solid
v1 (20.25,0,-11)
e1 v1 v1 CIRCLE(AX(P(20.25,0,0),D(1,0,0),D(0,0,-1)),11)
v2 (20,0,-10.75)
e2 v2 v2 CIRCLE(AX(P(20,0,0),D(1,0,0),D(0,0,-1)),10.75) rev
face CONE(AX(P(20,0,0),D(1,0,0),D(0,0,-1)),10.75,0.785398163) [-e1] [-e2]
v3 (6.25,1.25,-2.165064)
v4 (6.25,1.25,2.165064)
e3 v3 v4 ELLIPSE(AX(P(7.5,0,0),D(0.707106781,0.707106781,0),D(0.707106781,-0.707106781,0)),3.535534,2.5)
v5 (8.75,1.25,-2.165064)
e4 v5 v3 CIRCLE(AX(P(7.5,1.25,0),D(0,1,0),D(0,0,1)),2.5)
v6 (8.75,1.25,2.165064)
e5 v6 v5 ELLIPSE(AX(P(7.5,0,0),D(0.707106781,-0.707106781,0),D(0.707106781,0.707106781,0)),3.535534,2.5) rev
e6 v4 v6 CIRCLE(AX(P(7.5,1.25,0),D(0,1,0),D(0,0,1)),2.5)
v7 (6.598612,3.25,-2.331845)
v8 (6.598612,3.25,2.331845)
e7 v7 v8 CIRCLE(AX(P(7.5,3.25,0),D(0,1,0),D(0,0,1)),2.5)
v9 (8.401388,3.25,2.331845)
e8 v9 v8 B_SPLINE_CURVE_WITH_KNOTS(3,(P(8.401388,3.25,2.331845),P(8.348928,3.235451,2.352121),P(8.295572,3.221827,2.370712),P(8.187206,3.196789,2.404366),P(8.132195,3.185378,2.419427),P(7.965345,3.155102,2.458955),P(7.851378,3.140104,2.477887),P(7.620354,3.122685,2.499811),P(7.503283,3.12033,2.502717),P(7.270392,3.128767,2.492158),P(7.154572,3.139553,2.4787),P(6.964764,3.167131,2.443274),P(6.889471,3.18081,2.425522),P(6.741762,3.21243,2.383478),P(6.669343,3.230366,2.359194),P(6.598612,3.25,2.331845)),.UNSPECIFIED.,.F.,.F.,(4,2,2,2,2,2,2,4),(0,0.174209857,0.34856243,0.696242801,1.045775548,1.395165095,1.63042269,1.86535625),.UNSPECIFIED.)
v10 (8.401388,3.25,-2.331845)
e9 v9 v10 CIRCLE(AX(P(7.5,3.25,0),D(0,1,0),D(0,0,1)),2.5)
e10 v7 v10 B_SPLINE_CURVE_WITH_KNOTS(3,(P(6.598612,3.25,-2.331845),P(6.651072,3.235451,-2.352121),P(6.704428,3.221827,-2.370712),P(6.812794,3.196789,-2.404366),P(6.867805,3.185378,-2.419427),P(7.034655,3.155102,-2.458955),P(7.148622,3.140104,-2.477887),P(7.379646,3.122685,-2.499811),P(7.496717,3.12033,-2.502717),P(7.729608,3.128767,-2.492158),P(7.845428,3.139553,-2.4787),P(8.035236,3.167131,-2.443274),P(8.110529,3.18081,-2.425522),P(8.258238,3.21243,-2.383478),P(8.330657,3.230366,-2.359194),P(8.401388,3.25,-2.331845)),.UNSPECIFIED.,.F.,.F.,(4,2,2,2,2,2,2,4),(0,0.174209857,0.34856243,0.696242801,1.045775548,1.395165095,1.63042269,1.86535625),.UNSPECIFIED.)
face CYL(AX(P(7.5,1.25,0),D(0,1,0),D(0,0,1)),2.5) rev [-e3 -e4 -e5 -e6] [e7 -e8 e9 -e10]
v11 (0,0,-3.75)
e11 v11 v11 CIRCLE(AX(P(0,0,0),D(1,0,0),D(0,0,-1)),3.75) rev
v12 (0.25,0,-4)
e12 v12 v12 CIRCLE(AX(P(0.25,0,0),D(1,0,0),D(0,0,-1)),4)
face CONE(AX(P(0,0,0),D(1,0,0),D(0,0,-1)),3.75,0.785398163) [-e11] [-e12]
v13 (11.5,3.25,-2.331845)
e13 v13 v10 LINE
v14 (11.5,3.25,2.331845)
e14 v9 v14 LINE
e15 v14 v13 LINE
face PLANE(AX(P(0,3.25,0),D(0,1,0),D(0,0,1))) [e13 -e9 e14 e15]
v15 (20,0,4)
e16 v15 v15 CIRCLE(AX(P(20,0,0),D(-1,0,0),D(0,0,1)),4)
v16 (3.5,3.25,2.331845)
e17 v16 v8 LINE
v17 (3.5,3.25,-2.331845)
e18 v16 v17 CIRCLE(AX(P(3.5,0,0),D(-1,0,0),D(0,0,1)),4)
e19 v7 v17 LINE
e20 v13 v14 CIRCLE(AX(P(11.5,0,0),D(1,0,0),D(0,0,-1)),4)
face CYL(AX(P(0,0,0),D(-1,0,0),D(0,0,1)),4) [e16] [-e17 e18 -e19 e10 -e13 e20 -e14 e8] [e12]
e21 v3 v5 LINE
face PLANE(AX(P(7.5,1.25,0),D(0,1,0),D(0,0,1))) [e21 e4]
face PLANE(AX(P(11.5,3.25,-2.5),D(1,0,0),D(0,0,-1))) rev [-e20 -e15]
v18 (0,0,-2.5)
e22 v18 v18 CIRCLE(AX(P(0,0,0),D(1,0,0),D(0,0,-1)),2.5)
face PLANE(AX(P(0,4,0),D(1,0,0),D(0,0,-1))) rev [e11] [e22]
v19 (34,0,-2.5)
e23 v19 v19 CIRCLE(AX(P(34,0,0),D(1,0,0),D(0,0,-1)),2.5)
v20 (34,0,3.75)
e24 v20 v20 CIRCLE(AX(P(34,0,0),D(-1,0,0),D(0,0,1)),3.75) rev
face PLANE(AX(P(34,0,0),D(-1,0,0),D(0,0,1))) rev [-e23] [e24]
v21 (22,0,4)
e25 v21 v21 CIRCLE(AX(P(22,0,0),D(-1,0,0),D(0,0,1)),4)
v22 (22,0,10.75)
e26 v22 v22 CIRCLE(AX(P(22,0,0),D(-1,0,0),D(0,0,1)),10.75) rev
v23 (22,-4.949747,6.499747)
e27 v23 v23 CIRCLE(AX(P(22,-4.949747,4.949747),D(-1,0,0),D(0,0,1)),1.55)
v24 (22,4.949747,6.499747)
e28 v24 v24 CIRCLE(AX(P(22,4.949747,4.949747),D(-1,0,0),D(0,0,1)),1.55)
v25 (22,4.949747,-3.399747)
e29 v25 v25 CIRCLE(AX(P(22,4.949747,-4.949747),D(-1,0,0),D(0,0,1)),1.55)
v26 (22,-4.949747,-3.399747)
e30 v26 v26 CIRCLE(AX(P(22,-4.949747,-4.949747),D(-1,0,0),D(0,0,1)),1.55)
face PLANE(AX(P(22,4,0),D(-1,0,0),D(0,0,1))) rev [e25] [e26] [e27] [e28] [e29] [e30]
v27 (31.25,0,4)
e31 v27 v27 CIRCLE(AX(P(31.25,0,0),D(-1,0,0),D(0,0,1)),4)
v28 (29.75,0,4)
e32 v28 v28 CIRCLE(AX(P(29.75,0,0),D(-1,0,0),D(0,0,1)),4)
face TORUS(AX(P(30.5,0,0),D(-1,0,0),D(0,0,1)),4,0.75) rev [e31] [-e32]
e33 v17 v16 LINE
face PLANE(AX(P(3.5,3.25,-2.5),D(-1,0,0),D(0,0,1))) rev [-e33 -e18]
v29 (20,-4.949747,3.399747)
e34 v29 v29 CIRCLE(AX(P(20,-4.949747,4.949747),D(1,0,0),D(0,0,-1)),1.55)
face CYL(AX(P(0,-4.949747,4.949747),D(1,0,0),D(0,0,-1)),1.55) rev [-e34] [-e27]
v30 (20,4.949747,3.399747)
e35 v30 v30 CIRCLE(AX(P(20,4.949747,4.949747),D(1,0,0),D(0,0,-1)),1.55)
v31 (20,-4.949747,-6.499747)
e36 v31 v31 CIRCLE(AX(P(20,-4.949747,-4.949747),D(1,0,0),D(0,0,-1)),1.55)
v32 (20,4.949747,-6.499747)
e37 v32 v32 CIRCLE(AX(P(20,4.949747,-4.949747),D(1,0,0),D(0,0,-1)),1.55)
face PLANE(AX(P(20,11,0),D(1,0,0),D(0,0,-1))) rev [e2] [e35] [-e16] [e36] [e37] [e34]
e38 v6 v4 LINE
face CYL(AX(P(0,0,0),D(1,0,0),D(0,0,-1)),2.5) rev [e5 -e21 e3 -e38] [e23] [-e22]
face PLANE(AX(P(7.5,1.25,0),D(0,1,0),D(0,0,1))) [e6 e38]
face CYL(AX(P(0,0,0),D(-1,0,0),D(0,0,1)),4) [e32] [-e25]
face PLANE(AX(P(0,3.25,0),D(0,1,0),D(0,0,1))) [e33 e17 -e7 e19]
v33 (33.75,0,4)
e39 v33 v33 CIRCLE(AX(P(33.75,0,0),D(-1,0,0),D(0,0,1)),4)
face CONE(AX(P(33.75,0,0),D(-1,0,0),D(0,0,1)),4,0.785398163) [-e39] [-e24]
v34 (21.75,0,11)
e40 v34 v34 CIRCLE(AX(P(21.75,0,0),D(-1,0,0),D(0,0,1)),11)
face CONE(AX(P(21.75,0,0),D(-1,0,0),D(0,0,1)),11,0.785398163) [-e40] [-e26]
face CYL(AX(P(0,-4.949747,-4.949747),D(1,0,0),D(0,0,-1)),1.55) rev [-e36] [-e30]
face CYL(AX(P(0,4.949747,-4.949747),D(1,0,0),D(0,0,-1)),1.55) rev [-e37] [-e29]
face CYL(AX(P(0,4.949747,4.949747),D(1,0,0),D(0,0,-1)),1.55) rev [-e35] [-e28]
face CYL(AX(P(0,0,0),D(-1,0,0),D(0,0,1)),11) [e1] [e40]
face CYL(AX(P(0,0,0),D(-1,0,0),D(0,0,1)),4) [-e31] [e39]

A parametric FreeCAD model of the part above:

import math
import FreeCAD as App
import Part
import Sketcher
from FreeCAD import Vector


def edges_at(feature, points):
    """Names of the edges that pass closest to the given points."""
    edges = feature.Shape.Edges
    near = lambda p: min(range(len(edges)), key=lambda i: edges[i].distToShape(Part.Vertex(*p))[0])
    return sorted({f"Edge{near(p) + 1}" for p in points})


def add_polygon(sketch, points):
    """Adds a closed chain of lines whose ends are joined by coincident constraints."""
    first, n = sketch.GeometryCount, len(points)
    for a, b in zip(points, points[1:] + points[:1]):
        sketch.addGeometry(Part.LineSegment(App.Vector(*a, 0), App.Vector(*b, 0)), False)
    for i in range(n):
        sketch.addConstraint(Sketcher.Constraint("Coincident", first + i, 2, first + (i + 1) % n, 1))

doc = App.newDocument("Part")
params = doc.addObject("Spreadsheet::Sheet", "Params")
for row, (alias, value) in enumerate([
    ("sketch1_width", "2 mm"),
    ("sketch1_width2", "20 mm"),
    ("sketch1_width3", "34 mm"),
    ("sketch1_height", "4 mm"),
    ("sketch1_height2", "7 mm"),
    ("revolution_angle", "360 deg"),
    ("sketch2_diameter", "5 mm"),
    ("sketch3_diameter", "3.1 mm"),
    ("sketch4_width", "8 mm"),
    ("sketch4_height", "5 mm"),
    ("pocket3_length", "0.75 mm"),
    ("sketch5_diameter", "5 mm"),
    ("pocket4_length", "2 mm"),
    ("chamfer_size", "0.25 mm"),
], start=1):
    params.set(f"A{row}", alias)
    params.set(f"B{row}", "=" + value)
    params.setAlias(f"B{row}", alias)

body = doc.addObject("PartDesign::Body", "Body")

# Sketch on XY plane
sketch1 = doc.addObject("Sketcher::SketchObject", "Sketch")
body.addObject(sketch1)
sketch1.AttachmentSupport = (doc.XY_Plane, [""])
sketch1.MapMode = "FlatFace"
sketch1.addGeometry([
    Part.LineSegment(Vector(34, 0, 0), Vector(34, 4, 0)),  # 0
    Part.LineSegment(Vector(34, 4, 0), Vector(31.2, 4, 0)),  # 1
    Part.ArcOfCircle(Part.Circle(Vector(30.5, 4, 0), Vector(0, 0, 1), 0.8), math.radians(180), math.radians(360)),  # 2
    Part.LineSegment(Vector(29.8, 4, 0), Vector(22, 4, 0)),  # 3
    Part.LineSegment(Vector(22, 4, 0), Vector(22, 11, 0)),  # 4
    Part.LineSegment(Vector(22, 11, 0), Vector(20, 11, 0)),  # 5
    Part.LineSegment(Vector(20, 11, 0), Vector(20, 4, 0)),  # 6
    Part.LineSegment(Vector(20, 4, 0), Vector(0, 4, 0)),  # 7
    Part.LineSegment(Vector(0, 4, 0), Vector(0, 0, 0)),  # 8
    Part.LineSegment(Vector(0, 0, 0), Vector(34, 0, 0)),  # 9
], False)
sketch1.addConstraint([
    Sketcher.Constraint("Coincident", 0, 2, 1, 1),
    Sketcher.Constraint("Coincident", 1, 2, 2, 2),
    Sketcher.Constraint("Coincident", 2, 1, 3, 1),
    Sketcher.Constraint("Coincident", 3, 2, 4, 1),
    Sketcher.Constraint("Coincident", 4, 2, 5, 1),
    Sketcher.Constraint("Coincident", 5, 2, 6, 1),
    Sketcher.Constraint("Coincident", 6, 2, 7, 1),
    Sketcher.Constraint("Coincident", 7, 2, 8, 1),
    Sketcher.Constraint("Coincident", 8, 2, 9, 1),
    Sketcher.Constraint("Coincident", 9, 2, 0, 1),
    Sketcher.Constraint("Vertical", 0),
    Sketcher.Constraint("Horizontal", 1),
    Sketcher.Constraint("Horizontal", 3),
    Sketcher.Constraint("Vertical", 4),
    Sketcher.Constraint("Horizontal", 5),
    Sketcher.Constraint("Vertical", 6),
    Sketcher.Constraint("Horizontal", 7),
    Sketcher.Constraint("Vertical", 8),
    Sketcher.Constraint("Horizontal", 9),
    Sketcher.Constraint("Coincident", 8, 2, -1, 1),
    Sketcher.Constraint("Horizontal", 2, 3, 0, 2),
    Sketcher.Constraint("Horizontal", 1, 2, 2, 1),
    Sketcher.Constraint("Horizontal", 3, 2, 6, 2),
    Sketcher.Constraint("DistanceX", 5, 2, 5, 1, 2.0),
    Sketcher.Constraint("DistanceX", 7, 2, 7, 1, 20.0),
    Sketcher.Constraint("DistanceX", 9, 1, 9, 2, 34.0),
    Sketcher.Constraint("DistanceY", 0, 1, 0, 2, 4.0),
    Sketcher.Constraint("DistanceY", 4, 1, 4, 2, 7.0),
    Sketcher.Constraint("Radius", 2, 0.75),
    Sketcher.Constraint("DistanceX", 1, 2, 1, 1, 2.75),
])
sketch1.setExpression("Constraints[23]", "Params.sketch1_width")
sketch1.setExpression("Constraints[24]", "Params.sketch1_width2")
sketch1.setExpression("Constraints[25]", "Params.sketch1_width3")
sketch1.setExpression("Constraints[26]", "Params.sketch1_height")
sketch1.setExpression("Constraints[27]", "Params.sketch1_height2")
revolution = doc.addObject("PartDesign::Revolution", "Revolution")
body.addObject(revolution)
revolution.Profile = sketch1
revolution.ReferenceAxis = (sketch1, ["H_Axis"])
revolution.setExpression("Angle", "Params.revolution_angle")

# Sketch on YZ plane
sketch2 = doc.addObject("Sketcher::SketchObject", "Sketch001")
body.addObject(sketch2)
sketch2.AttachmentSupport = (doc.YZ_Plane, [""])
sketch2.MapMode = "FlatFace"
sketch2.AttachmentOffset = App.Placement(Vector(0, 0, 34), App.Rotation())
sketch2.addGeometry(Part.Circle(Vector(0, 0, 0), Vector(0, 0, 1), 2.5), False)
sketch2.addConstraint([
    Sketcher.Constraint("Coincident", 0, 3, -1, 1),
    Sketcher.Constraint("Diameter", 0, 5.0),
])
sketch2.setExpression("Constraints[1]", "Params.sketch2_diameter")
pocket1 = doc.addObject("PartDesign::Pocket", "Pocket")
body.addObject(pocket1)
pocket1.Profile = sketch2
pocket1.Type = "ThroughAll"

# Sketch on YZ plane
sketch3 = doc.addObject("Sketcher::SketchObject", "Sketch002")
body.addObject(sketch3)
sketch3.AttachmentSupport = (doc.YZ_Plane, [""])
sketch3.MapMode = "FlatFace"
sketch3.AttachmentOffset = App.Placement(Vector(0, 0, 22), App.Rotation())
sketch3.addGeometry([
    Part.Circle(Vector(4.9, -4.9, 0), Vector(0, 0, 1), 1.6),
    Part.Circle(Vector(-4.9, -4.9, 0), Vector(0, 0, 1), 1.6),
    Part.Circle(Vector(-4.9, 4.9, 0), Vector(0, 0, 1), 1.6),
    Part.Circle(Vector(4.9, 4.9, 0), Vector(0, 0, 1), 1.6),
], False)
sketch3.addConstraint([
    Sketcher.Constraint("Equal", 0, 1),
    Sketcher.Constraint("Equal", 1, 2),
    Sketcher.Constraint("Equal", 2, 3),
    Sketcher.Constraint("Symmetric", 0, 3, 2, 3, -1, 1),
    Sketcher.Constraint("Symmetric", 1, 3, 3, 3, -1, 1),
    Sketcher.Constraint("Symmetric", 0, 3, 1, 3, -2),
    Sketcher.Constraint("Diameter", 0, 3.1),
    Sketcher.Constraint("DistanceX", -1, 1, 0, 3, 4.949747),
    Sketcher.Constraint("DistanceY", 0, 3, -1, 1, 4.949747),
])
sketch3.setExpression("Constraints[6]", "Params.sketch3_diameter")
pocket2 = doc.addObject("PartDesign::Pocket", "Pocket001")
body.addObject(pocket2)
pocket2.Profile = sketch3
pocket2.Type = "ThroughAll"
pocket2.Midplane = True

# Sketch on XZ plane
sketch4 = doc.addObject("Sketcher::SketchObject", "Sketch003")
body.addObject(sketch4)
sketch4.AttachmentSupport = (doc.XZ_Plane, [""])
sketch4.MapMode = "FlatFace"
sketch4.AttachmentOffset = App.Placement(Vector(0, 0, -4), App.Rotation())
add_polygon(sketch4, [(4, -2), (4, 2), (12, 2), (12, -2)])  # lines 0-3
sketch4.addConstraint([
    Sketcher.Constraint("Vertical", 0),
    Sketcher.Constraint("Horizontal", 1),
    Sketcher.Constraint("Vertical", 2),
    Sketcher.Constraint("Horizontal", 3),
    Sketcher.Constraint("DistanceX", 1, 1, 1, 2, 8.0),
    Sketcher.Constraint("DistanceY", 0, 1, 0, 2, 5.0),
    Sketcher.Constraint("DistanceX", -1, 1, 0, 2, 3.5),
    Sketcher.Constraint("DistanceY", -1, 1, 0, 2, 2.5),
])
sketch4.setExpression("Constraints[8]", "Params.sketch4_width")
sketch4.setExpression("Constraints[9]", "Params.sketch4_height")
pocket3 = doc.addObject("PartDesign::Pocket", "Pocket002")
body.addObject(pocket3)
pocket3.Profile = sketch4
pocket3.setExpression("Length", "Params.pocket3_length")
pocket3.Reversed = True

# Sketch on XZ plane
sketch5 = doc.addObject("Sketcher::SketchObject", "Sketch004")
body.addObject(sketch5)
sketch5.AttachmentSupport = (doc.XZ_Plane, [""])
sketch5.MapMode = "FlatFace"
sketch5.AttachmentOffset = App.Placement(Vector(0, 0, -3.25), App.Rotation())
sketch5.addGeometry(Part.Circle(Vector(7.5, 0, 0), Vector(0, 0, 1), 2.5), False)
sketch5.addConstraint([
    Sketcher.Constraint("PointOnObject", 0, 3, -1),
    Sketcher.Constraint("Diameter", 0, 5.0),
    Sketcher.Constraint("DistanceX", -1, 1, 0, 3, 7.5),
])
sketch5.setExpression("Constraints[1]", "Params.sketch5_diameter")
pocket4 = doc.addObject("PartDesign::Pocket", "Pocket003")
body.addObject(pocket4)
pocket4.Profile = sketch5
pocket4.setExpression("Length", "Params.pocket4_length")
pocket4.Reversed = True
doc.recompute()

chamfer = doc.addObject("PartDesign::Chamfer", "Chamfer")
body.addObject(chamfer)
chamfer.Base = (pocket4, edges_at(pocket4, [
    (22, 0, -11),
    (20, 0, -11),
    (0, 0, -4),
    (34, 0, -4),
]))
chamfer.setExpression("Size", "Params.chamfer_size")

doc.recompute()
